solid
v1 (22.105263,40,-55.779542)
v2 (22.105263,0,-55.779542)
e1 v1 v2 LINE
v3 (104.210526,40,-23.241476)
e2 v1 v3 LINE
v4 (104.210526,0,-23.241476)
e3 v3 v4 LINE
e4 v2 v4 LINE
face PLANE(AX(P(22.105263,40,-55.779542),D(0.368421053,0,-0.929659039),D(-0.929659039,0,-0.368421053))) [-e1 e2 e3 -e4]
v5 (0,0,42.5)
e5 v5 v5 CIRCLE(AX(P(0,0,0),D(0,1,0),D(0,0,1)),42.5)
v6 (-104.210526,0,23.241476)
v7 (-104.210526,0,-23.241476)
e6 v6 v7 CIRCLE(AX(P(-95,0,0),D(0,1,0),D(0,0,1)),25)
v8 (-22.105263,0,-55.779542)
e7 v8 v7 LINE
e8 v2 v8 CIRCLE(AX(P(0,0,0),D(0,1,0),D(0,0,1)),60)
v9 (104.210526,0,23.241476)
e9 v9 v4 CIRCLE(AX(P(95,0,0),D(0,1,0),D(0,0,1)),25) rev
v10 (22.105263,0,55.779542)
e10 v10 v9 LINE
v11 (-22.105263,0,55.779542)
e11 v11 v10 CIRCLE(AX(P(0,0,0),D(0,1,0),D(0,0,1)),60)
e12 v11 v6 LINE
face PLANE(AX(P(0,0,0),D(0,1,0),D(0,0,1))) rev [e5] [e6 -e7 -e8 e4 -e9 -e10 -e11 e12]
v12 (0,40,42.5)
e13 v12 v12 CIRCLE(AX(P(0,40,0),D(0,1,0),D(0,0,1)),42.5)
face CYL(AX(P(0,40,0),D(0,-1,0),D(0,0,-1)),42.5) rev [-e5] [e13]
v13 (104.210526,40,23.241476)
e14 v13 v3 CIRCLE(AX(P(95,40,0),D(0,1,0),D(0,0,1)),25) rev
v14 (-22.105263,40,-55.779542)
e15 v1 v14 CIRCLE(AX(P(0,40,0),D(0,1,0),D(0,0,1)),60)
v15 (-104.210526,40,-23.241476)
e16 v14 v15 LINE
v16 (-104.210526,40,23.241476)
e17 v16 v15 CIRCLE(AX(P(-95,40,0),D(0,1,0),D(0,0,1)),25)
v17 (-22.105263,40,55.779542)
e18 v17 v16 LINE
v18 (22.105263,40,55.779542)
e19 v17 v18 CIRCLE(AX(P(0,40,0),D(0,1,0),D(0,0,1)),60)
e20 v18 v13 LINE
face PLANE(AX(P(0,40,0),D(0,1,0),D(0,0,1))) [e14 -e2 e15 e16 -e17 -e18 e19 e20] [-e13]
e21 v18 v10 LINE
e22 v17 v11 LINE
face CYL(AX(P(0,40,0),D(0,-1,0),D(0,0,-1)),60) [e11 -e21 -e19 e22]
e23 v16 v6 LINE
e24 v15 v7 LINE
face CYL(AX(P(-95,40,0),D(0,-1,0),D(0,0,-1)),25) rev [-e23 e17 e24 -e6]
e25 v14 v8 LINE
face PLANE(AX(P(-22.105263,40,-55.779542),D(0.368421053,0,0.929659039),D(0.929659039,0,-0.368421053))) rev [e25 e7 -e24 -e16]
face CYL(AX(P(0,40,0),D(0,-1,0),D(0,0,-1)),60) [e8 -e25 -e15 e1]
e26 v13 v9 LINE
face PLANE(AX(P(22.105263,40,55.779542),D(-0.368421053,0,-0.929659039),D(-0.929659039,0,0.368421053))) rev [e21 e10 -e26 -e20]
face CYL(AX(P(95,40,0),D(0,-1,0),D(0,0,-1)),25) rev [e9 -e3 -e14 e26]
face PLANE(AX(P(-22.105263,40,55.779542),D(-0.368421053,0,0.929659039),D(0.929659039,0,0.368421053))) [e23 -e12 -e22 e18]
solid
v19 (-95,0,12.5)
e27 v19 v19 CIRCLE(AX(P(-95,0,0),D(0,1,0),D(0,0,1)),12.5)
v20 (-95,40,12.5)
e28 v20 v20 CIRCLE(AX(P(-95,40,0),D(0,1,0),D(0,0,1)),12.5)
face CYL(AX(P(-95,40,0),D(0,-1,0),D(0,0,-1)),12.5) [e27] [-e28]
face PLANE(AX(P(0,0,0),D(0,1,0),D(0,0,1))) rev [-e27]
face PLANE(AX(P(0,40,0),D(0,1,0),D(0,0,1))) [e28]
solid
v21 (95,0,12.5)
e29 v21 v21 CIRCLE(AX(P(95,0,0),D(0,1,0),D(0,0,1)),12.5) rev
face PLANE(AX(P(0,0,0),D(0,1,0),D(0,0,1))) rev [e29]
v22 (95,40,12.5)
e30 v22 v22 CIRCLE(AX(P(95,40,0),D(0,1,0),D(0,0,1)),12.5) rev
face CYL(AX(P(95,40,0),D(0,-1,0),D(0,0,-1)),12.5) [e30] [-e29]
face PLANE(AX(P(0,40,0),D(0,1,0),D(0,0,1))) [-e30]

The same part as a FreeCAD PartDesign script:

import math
import FreeCAD as App
import Part
import Sketcher
Q = App.Units.Quantity

doc = App.newDocument("Part")
body = doc.addObject("PartDesign::Body", "Body")

# Sketch on XZ plane
sketch1 = body.newObject("Sketcher::SketchObject", "Sketch")
sketch1.AttachmentSupport = (doc.getObject("XZ_Plane"), [""])
sketch1.MapMode = "FlatFace"
sketch1.addGeometry([
    Part.LineSegment(App.Vector(-104, 23, 0), App.Vector(-22, 56, 0)),  # 0
    Part.ArcOfCircle(Part.Circle(App.Vector(0, 0, 0), App.Vector(0, 0, 1), 60), math.radians(68), math.radians(112)),  # 1
    Part.LineSegment(App.Vector(22, 56, 0), App.Vector(104, 23, 0)),  # 2
    Part.ArcOfCircle(Part.Circle(App.Vector(95, 0, 0), App.Vector(0, 0, 1), 25), math.radians(68), math.radians(292)),  # 3
    Part.LineSegment(App.Vector(104, -23, 0), App.Vector(22, -56, 0)),  # 4
    Part.ArcOfCircle(Part.Circle(App.Vector(0, 0, 0), App.Vector(0, 0, 1), 60), math.radians(-112), math.radians(-68)),  # 5
    Part.LineSegment(App.Vector(-22, -56, 0), App.Vector(-104, -23, 0)),  # 6
    Part.ArcOfCircle(Part.Circle(App.Vector(-95, 0, 0), App.Vector(0, 0, 1), 25), math.radians(-112), math.radians(112)),  # 7
    Part.Circle(App.Vector(0, 0, 0), App.Vector(0, 0, 1), 42),  # 8
], False)
sketch1.addConstraint([
    Sketcher.Constraint("Tangent", 0, 2, 1, 2),
    Sketcher.Constraint("Tangent", 1, 1, 2, 1),
    Sketcher.Constraint("Tangent", 2, 2, 3, 1),
    Sketcher.Constraint("Tangent", 3, 2, 4, 1),
    Sketcher.Constraint("Tangent", 4, 2, 5, 2),
    Sketcher.Constraint("Tangent", 5, 1, 6, 1),
    Sketcher.Constraint("Tangent", 6, 2, 7, 1),
    Sketcher.Constraint("Tangent", 7, 2, 0, 1),
    Sketcher.Constraint("Coincident", 1, 3, -1, 1),
    Sketcher.Constraint("Coincident", 5, 3, -1, 1),
    Sketcher.Constraint("Coincident", 8, 3, -1, 1),
    Sketcher.Constraint("Equal", 1, 5),
    Sketcher.Constraint("Equal", 3, 7),
    Sketcher.Constraint("Symmetric", 3, 3, 7, 3, -1, 1),
    Sketcher.Constraint("PointOnObject", 3, 3, -1),
    Sketcher.Constraint("Diameter", 8, Q("85 mm")),
    Sketcher.Constraint("Radius", 1, Q("60 mm")),
    Sketcher.Constraint("Radius", 3, Q("25 mm")),
    Sketcher.Constraint("DistanceX", -1, 1, 3, 3, Q("95 mm")),
])
pad1 = body.newObject("PartDesign::Pad", "Pad")
pad1.Profile = sketch1
pad1.Length = 40
pad1.Reversed = True
body2 = doc.addObject("PartDesign::Body", "Body001")

# Sketch on XZ plane
sketch2 = body2.newObject("Sketcher::SketchObject", "Sketch001")
sketch2.AttachmentSupport = (doc.getObject("XZ_Plane001"), [""])
sketch2.MapMode = "FlatFace"
sketch2.addGeometry(Part.Circle(App.Vector(-95, 0, 0), App.Vector(0, 0, 1), 12), False)
sketch2.addConstraint([
    Sketcher.Constraint("PointOnObject", 0, 3, -1),
    Sketcher.Constraint("Diameter", 0, Q("25 mm")),
    Sketcher.Constraint("DistanceX", 0, 3, -1, 1, Q("95 mm")),
])
pad2 = body2.newObject("PartDesign::Pad", "Pad001")
pad2.Profile = sketch2
pad2.Length = 40
pad2.Reversed = True
body3 = doc.addObject("PartDesign::Body", "Body002")

# Sketch on XZ plane
sketch3 = body3.newObject("Sketcher::SketchObject", "Sketch002")
sketch3.AttachmentSupport = (doc.getObject("XZ_Plane002"), [""])
sketch3.MapMode = "FlatFace"
sketch3.addGeometry(Part.Circle(App.Vector(95, 0, 0), App.Vector(0, 0, 1), 12), False)
sketch3.addConstraint([
    Sketcher.Constraint("PointOnObject", 0, 3, -1),
    Sketcher.Constraint("Diameter", 0, Q("25 mm")),
    Sketcher.Constraint("DistanceX", -1, 1, 0, 3, Q("95 mm")),
])
pad3 = body3.newObject("PartDesign::Pad", "Pad002")
pad3.Profile = sketch3
pad3.Length = 40
pad3.Reversed = True

doc.recompute()
